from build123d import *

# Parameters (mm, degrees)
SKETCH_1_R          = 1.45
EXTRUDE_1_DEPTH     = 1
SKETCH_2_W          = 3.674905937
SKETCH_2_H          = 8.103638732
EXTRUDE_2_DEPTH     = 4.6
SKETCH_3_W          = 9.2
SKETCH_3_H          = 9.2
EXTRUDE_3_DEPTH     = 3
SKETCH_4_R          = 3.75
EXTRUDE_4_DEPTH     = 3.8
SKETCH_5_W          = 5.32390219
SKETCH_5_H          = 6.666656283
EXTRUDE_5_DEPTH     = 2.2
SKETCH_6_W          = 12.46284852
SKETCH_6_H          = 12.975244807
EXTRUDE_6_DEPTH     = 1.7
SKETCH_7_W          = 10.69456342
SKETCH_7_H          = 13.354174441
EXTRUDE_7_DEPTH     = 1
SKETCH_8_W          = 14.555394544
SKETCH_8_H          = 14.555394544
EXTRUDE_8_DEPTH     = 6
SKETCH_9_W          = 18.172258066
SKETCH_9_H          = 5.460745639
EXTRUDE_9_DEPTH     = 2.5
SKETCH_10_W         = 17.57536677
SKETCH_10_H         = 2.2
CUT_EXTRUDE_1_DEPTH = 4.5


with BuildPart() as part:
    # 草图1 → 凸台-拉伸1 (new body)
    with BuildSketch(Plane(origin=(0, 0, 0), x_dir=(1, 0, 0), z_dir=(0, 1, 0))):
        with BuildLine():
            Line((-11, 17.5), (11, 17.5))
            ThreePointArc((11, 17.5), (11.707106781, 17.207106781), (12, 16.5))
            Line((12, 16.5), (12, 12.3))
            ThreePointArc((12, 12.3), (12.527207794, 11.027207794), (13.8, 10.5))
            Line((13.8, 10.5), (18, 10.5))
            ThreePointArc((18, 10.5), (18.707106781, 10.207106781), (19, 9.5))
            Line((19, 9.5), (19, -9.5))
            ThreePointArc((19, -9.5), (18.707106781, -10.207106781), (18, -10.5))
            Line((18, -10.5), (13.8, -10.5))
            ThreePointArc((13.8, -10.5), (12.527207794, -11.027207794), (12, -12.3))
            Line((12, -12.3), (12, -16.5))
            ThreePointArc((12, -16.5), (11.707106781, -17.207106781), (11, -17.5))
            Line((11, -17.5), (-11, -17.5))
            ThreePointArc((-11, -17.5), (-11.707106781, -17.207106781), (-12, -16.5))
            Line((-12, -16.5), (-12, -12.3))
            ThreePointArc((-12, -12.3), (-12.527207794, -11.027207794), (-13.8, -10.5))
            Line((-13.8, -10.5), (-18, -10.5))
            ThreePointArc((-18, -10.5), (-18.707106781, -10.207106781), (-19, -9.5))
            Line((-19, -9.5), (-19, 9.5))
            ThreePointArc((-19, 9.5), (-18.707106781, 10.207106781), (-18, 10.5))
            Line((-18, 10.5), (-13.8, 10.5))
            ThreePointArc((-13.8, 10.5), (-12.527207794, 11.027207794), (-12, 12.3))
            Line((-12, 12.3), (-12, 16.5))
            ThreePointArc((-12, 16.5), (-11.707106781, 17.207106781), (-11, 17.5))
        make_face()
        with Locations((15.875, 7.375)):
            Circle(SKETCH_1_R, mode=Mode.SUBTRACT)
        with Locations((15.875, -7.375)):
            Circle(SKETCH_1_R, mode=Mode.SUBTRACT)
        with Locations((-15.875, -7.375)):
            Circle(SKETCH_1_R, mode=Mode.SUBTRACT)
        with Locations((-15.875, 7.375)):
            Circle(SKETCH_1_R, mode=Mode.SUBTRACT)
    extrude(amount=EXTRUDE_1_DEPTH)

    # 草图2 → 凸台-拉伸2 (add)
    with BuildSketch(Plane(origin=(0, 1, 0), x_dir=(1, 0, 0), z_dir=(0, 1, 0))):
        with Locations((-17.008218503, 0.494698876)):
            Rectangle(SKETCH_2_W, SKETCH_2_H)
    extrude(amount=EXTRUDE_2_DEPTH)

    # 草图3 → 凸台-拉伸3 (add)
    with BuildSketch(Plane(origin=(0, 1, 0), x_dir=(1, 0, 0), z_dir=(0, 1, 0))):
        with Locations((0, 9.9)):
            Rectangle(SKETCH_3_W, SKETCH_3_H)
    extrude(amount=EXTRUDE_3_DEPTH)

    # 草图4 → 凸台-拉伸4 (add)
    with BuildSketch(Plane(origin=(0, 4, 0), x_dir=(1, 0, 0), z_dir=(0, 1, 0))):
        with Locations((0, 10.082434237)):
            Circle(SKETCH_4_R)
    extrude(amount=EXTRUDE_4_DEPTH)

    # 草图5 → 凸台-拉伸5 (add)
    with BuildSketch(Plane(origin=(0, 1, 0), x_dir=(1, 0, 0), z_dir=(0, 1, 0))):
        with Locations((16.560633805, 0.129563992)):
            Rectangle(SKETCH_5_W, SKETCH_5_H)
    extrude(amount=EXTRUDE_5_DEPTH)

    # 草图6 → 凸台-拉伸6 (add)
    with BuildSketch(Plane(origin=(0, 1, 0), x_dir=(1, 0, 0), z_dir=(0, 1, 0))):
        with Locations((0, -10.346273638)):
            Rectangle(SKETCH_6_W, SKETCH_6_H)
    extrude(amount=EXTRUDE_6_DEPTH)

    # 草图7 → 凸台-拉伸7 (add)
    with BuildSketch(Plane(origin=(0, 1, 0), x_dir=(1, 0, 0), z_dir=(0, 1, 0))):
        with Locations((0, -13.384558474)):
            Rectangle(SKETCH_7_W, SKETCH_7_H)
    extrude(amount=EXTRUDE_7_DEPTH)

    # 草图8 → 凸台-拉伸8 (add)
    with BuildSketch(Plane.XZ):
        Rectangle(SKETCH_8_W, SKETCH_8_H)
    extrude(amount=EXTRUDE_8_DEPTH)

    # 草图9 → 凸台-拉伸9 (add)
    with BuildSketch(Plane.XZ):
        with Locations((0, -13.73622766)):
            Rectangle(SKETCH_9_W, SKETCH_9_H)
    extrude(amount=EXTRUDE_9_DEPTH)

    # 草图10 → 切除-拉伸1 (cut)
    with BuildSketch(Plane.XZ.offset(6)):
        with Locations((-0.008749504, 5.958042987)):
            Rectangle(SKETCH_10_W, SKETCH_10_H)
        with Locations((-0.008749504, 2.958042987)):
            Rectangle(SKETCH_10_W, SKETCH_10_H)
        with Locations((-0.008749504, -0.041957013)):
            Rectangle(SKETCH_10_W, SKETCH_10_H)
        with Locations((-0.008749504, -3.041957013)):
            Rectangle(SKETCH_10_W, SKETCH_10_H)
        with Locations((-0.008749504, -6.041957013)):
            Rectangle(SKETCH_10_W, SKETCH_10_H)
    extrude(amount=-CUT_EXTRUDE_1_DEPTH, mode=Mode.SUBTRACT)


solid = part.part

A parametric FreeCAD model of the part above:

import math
import FreeCAD as App
import Part
import Sketcher


def add_polygon(sketch, points):
    """Adds a closed chain of lines whose ends are joined by coincident constraints."""
    first, n = sketch.GeometryCount, len(points)
    for a, b in zip(points, points[1:] + points[:1]):
        sketch.addGeometry(Part.LineSegment(App.Vector(*a, 0), App.Vector(*b, 0)), False)
    for i in range(n):
        sketch.addConstraint(Sketcher.Constraint("Coincident", first + i, 2, first + (i + 1) % n, 1))

doc = App.newDocument("Part")
body = doc.addObject("PartDesign::Body", "Body")

# Sketch on XZ plane
sketch1 = body.newObject("Sketcher::SketchObject", "Sketch")
sketch1.AttachmentSupport = (doc.getObject("XZ_Plane"), [""])
sketch1.MapMode = "FlatFace"
sketch1.addGeometry([
    Part.LineSegment(App.Vector(11, -17.5, 0), App.Vector(-11, -17.5, 0)),  # 0
    Part.ArcOfCircle(Part.Circle(App.Vector(-11, -16.5, 0), App.Vector(0, 0, 1), 1), math.radians(-180), math.radians(-90)),  # 1
    Part.LineSegment(App.Vector(-12, -16.5, 0), App.Vector(-12, -12.3, 0)),  # 2
    Part.ArcOfCircle(Part.Circle(App.Vector(-13.8, -12.3, 0), App.Vector(0, 0, 1), 1.8), math.radians(0), math.radians(90)),  # 3
    Part.LineSegment(App.Vector(-13.8, -10.5, 0), App.Vector(-18, -10.5, 0)),  # 4
    Part.ArcOfCircle(Part.Circle(App.Vector(-18, -9.5, 0), App.Vector(0, 0, 1), 1), math.radians(-180), math.radians(-90)),  # 5
    Part.LineSegment(App.Vector(-19, -9.5, 0), App.Vector(-19, 9.5, 0)),  # 6
    Part.ArcOfCircle(Part.Circle(App.Vector(-18, 9.5, 0), App.Vector(0, 0, 1), 1), math.radians(90), math.radians(180)),  # 7
    Part.LineSegment(App.Vector(-18, 10.5, 0), App.Vector(-13.8, 10.5, 0)),  # 8
    Part.ArcOfCircle(Part.Circle(App.Vector(-13.8, 12.3, 0), App.Vector(0, 0, 1), 1.8), math.radians(-90), math.radians(0)),  # 9
    Part.LineSegment(App.Vector(-12, 12.3, 0), App.Vector(-12, 16.5, 0)),  # 10
    Part.ArcOfCircle(Part.Circle(App.Vector(-11, 16.5, 0), App.Vector(0, 0, 1), 1), math.radians(90), math.radians(180)),  # 11
    Part.LineSegment(App.Vector(-11, 17.5, 0), App.Vector(11, 17.5, 0)),  # 12
    Part.ArcOfCircle(Part.Circle(App.Vector(11, 16.5, 0), App.Vector(0, 0, 1), 1), math.radians(0), math.radians(90)),  # 13
    Part.LineSegment(App.Vector(12, 16.5, 0), App.Vector(12, 12.3, 0)),  # 14
    Part.ArcOfCircle(Part.Circle(App.Vector(13.8, 12.3, 0), App.Vector(0, 0, 1), 1.8), math.radians(180), math.radians(270)),  # 15
    Part.LineSegment(App.Vector(13.8, 10.5, 0), App.Vector(18, 10.5, 0)),  # 16
    Part.ArcOfCircle(Part.Circle(App.Vector(18, 9.5, 0), App.Vector(0, 0, 1), 1), math.radians(0), math.radians(90)),  # 17
    Part.LineSegment(App.Vector(19, 9.5, 0), App.Vector(19, -9.5, 0)),  # 18
    Part.ArcOfCircle(Part.Circle(App.Vector(18, -9.5, 0), App.Vector(0, 0, 1), 1), math.radians(-90), math.radians(0)),  # 19
    Part.LineSegment(App.Vector(18, -10.5, 0), App.Vector(13.8, -10.5, 0)),  # 20
    Part.ArcOfCircle(Part.Circle(App.Vector(13.8, -12.3, 0), App.Vector(0, 0, 1), 1.8), math.radians(90), math.radians(180)),  # 21
    Part.LineSegment(App.Vector(12, -12.3, 0), App.Vector(12, -16.5, 0)),  # 22
    Part.ArcOfCircle(Part.Circle(App.Vector(11, -16.5, 0), App.Vector(0, 0, 1), 1), math.radians(-90), math.radians(0)),  # 23
    Part.Circle(App.Vector(15.875, 7.375, 0), App.Vector(0, 0, 1), 1.45),  # 24
    Part.Circle(App.Vector(-15.875, 7.375, 0), App.Vector(0, 0, 1), 1.45),  # 25
    Part.Circle(App.Vector(15.875, -7.375, 0), App.Vector(0, 0, 1), 1.45),  # 26
    Part.Circle(App.Vector(-15.875, -7.375, 0), App.Vector(0, 0, 1), 1.45),  # 27
], False)
sketch1.addConstraint([
    Sketcher.Constraint("Tangent", 0, 2, 1, 2),
    Sketcher.Constraint("Tangent", 1, 1, 2, 1),
    Sketcher.Constraint("Tangent", 2, 2, 3, 1),
    Sketcher.Constraint("Tangent", 3, 2, 4, 1),
    Sketcher.Constraint("Tangent", 4, 2, 5, 2),
    Sketcher.Constraint("Tangent", 5, 1, 6, 1),
    Sketcher.Constraint("Tangent", 6, 2, 7, 2),
    Sketcher.Constraint("Tangent", 7, 1, 8, 1),
    Sketcher.Constraint("Tangent", 8, 2, 9, 1),
    Sketcher.Constraint("Tangent", 9, 2, 10, 1),
    Sketcher.Constraint("Tangent", 10, 2, 11, 2),
    Sketcher.Constraint("Tangent", 11, 1, 12, 1),
    Sketcher.Constraint("Tangent", 12, 2, 13, 2),
    Sketcher.Constraint("Tangent", 13, 1, 14, 1),
    Sketcher.Constraint("Tangent", 14, 2, 15, 1),
    Sketcher.Constraint("Tangent", 15, 2, 16, 1),
    Sketcher.Constraint("Tangent", 16, 2, 17, 2),
    Sketcher.Constraint("Tangent", 17, 1, 18, 1),
    Sketcher.Constraint("Tangent", 18, 2, 19, 2),
    Sketcher.Constraint("Tangent", 19, 1, 20, 1),
    Sketcher.Constraint("Tangent", 20, 2, 21, 1),
    Sketcher.Constraint("Tangent", 21, 2, 22, 1),
    Sketcher.Constraint("Tangent", 22, 2, 23, 2),
    Sketcher.Constraint("Tangent", 23, 1, 0, 1),
    Sketcher.Constraint("Horizontal", 0),
    Sketcher.Constraint("Vertical", 2),
    Sketcher.Constraint("Horizontal", 4),
    Sketcher.Constraint("Vertical", 6),
    Sketcher.Constraint("Horizontal", 8),
    Sketcher.Constraint("Vertical", 10),
    Sketcher.Constraint("Horizontal", 12),
    Sketcher.Constraint("Vertical", 14),
    Sketcher.Constraint("Horizontal", 16),
    Sketcher.Constraint("Vertical", 18),
    Sketcher.Constraint("Horizontal", 20),
    Sketcher.Constraint("Vertical", 22),
    Sketcher.Constraint("Equal", 1, 5),
    Sketcher.Constraint("Equal", 5, 7),
    Sketcher.Constraint("Equal", 3, 9),
    Sketcher.Constraint("Equal", 7, 11),
    Sketcher.Constraint("Equal", 11, 13),
    Sketcher.Constraint("Equal", 9, 15),
    Sketcher.Constraint("Equal", 13, 17),
    Sketcher.Constraint("Equal", 17, 19),
    Sketcher.Constraint("Equal", 15, 21),
    Sketcher.Constraint("Equal", 19, 23),
    Sketcher.Constraint("Equal", 24, 25),
    Sketcher.Constraint("Equal", 25, 26),
    Sketcher.Constraint("Equal", 26, 27),
    Sketcher.Constraint("Symmetric", 1, 3, 13, 3, -1, 1),
    Sketcher.Constraint("Symmetric", 5, 3, 17, 3, -1, 1),
    Sketcher.Constraint("Symmetric", 9, 3, 21, 3, -1, 1),
    Sketcher.Constraint("Symmetric", 25, 3, 26, 3, -1, 1),
    Sketcher.Constraint("Symmetric", 24, 3, 27, 3, -1, 1),
    Sketcher.Constraint("Symmetric", 9, 3, 15, 3, -2),
    Sketcher.Constraint("Symmetric", 24, 3, 25, 3, -2),
    Sketcher.Constraint("Equal", 20, 2),
    Sketcher.Constraint("Radius", 1, 1.0),
    Sketcher.Constraint("Diameter", 24, 2.9),
    Sketcher.Constraint("Radius", 3, 1.8),
    Sketcher.Constraint("DistanceX", 0, 2, 0, 1, 22.0),
    Sketcher.Constraint("DistanceY", 6, 1, 6, 2, 19.0),
    Sketcher.Constraint("DistanceX", 4, 2, 4, 1, 4.2),
    Sketcher.Constraint("DistanceY", 26, 3, 24, 3, 14.75),
    Sketcher.Constraint("DistanceX", -1, 1, 24, 3, 15.875),
])
pad1 = body.newObject("PartDesign::Pad", "Pad")
pad1.Profile = sketch1
pad1.Length = 1
pad1.Reversed = True

# Sketch on XZ plane
sketch2 = body.newObject("Sketcher::SketchObject", "Sketch001")
sketch2.AttachmentSupport = (doc.getObject("XZ_Plane"), [""])
sketch2.MapMode = "FlatFace"
sketch2.AttachmentOffset = App.Placement(App.Vector(0, 0, -1), App.Rotation())
add_polygon(sketch2, [(-18.845671, -4.546518), (-18.845671, 3.55712), (-15.170766, 3.55712), (-15.170766, -4.546518)])  # lines 0-3
sketch2.addConstraint([
    Sketcher.Constraint("Vertical", 0),
    Sketcher.Constraint("Horizontal", 1),
    Sketcher.Constraint("Vertical", 2),
    Sketcher.Constraint("Horizontal", 3),
    Sketcher.Constraint("DistanceY", 0, 1, 0, 2, 8.103639),
    Sketcher.Constraint("DistanceX", 1, 1, 1, 2, 3.674906),
    Sketcher.Constraint("DistanceX", 0, 2, -1, 1, 18.845671),
    Sketcher.Constraint("DistanceY", -1, 1, 0, 2, 3.55712),
])
pad2 = body.newObject("PartDesign::Pad", "Pad001")
pad2.Profile = sketch2
pad2.Length = 4.6
pad2.Reversed = True

# Sketch on XZ plane
sketch3 = body.newObject("Sketcher::SketchObject", "Sketch002")
sketch3.AttachmentSupport = (doc.getObject("XZ_Plane"), [""])
sketch3.MapMode = "FlatFace"
sketch3.AttachmentOffset = App.Placement(App.Vector(0, 0, -1), App.Rotation())
add_polygon(sketch3, [(-4.6, -14.5), (-4.6, -5.3), (4.6, -5.3), (4.6, -14.5)])  # lines 0-3
sketch3.addConstraint([
    Sketcher.Constraint("Vertical", 0),
    Sketcher.Constraint("Horizontal", 1),
    Sketcher.Constraint("Vertical", 2),
    Sketcher.Constraint("Horizontal", 3),
    Sketcher.Constraint("Equal", 3, 0),
    Sketcher.Constraint("DistanceX", 1, 1, 1, 2, 9.2),
    Sketcher.Constraint("DistanceX", 0, 2, -1, 1, 4.6),
    Sketcher.Constraint("DistanceY", 0, 2, -1, 1, 5.3),
])
pad3 = body.newObject("PartDesign::Pad", "Pad002")
pad3.Profile = sketch3
pad3.Length = 3
pad3.Reversed = True

# Sketch on XZ plane
sketch4 = body.newObject("Sketcher::SketchObject", "Sketch003")
sketch4.AttachmentSupport = (doc.getObject("XZ_Plane"), [""])
sketch4.MapMode = "FlatFace"
sketch4.AttachmentOffset = App.Placement(App.Vector(0, 0, -4), App.Rotation())
sketch4.addGeometry(Part.Circle(App.Vector(0, -10.082434, 0), App.Vector(0, 0, 1), 3.75), False)
sketch4.addConstraint([
    Sketcher.Constraint("PointOnObject", 0, 3, -2),
    Sketcher.Constraint("Diameter", 0, 7.5),
    Sketcher.Constraint("DistanceY", 0, 3, -1, 1, 10.082434),
])
pad4 = body.newObject("PartDesign::Pad", "Pad003")
pad4.Profile = sketch4
pad4.Length = 3.8
pad4.Reversed = True

# Sketch on XZ plane
sketch5 = body.newObject("Sketcher::SketchObject", "Sketch004")
sketch5.AttachmentSupport = (doc.getObject("XZ_Plane"), [""])
sketch5.MapMode = "FlatFace"
sketch5.AttachmentOffset = App.Placement(App.Vector(0, 0, -1), App.Rotation())
add_polygon(sketch5, [(13.898683, -3.462892), (13.898683, 3.203764), (19.222585, 3.203764), (19.222585, -3.462892)])  # lines 0-3
sketch5.addConstraint([
    Sketcher.Constraint("Vertical", 0),
    Sketcher.Constraint("Horizontal", 1),
    Sketcher.Constraint("Vertical", 2),
    Sketcher.Constraint("Horizontal", 3),
    Sketcher.Constraint("DistanceX", 1, 1, 1, 2, 5.323902),
    Sketcher.Constraint("DistanceY", 0, 1, 0, 2, 6.666656),
    Sketcher.Constraint("DistanceX", -1, 1, 0, 2, 13.898683),
    Sketcher.Constraint("DistanceY", -1, 1, 0, 2, 3.203764),
])
pad5 = body.newObject("PartDesign::Pad", "Pad004")
pad5.Profile = sketch5
pad5.Length = 2.2
pad5.Reversed = True

# Sketch on XZ plane
sketch6 = body.newObject("Sketcher::SketchObject", "Sketch005")
sketch6.AttachmentSupport = (doc.getObject("XZ_Plane"), [""])
sketch6.MapMode = "FlatFace"
sketch6.AttachmentOffset = App.Placement(App.Vector(0, 0, -1), App.Rotation())
add_polygon(sketch6, [(-6.231424, 3.858651), (-6.231424, 16.833896), (6.231424, 16.833896), (6.231424, 3.858651)])  # lines 0-3
sketch6.addConstraint([
    Sketcher.Constraint("Vertical", 0),
    Sketcher.Constraint("Horizontal", 1),
    Sketcher.Constraint("Vertical", 2),
    Sketcher.Constraint("Horizontal", 3),
    Sketcher.Constraint("DistanceX", 1, 1, 1, 2, 12.462849),
    Sketcher.Constraint("DistanceY", 0, 1, 0, 2, 12.975245),
    Sketcher.Constraint("DistanceY", -1, 1, 2, 2, 3.858651),
    Sketcher.Constraint("DistanceX", 0, 2, -1, 1, 6.231424),
])
pad6 = body.newObject("PartDesign::Pad", "Pad005")
pad6.Profile = sketch6
pad6.Length = 1.7
pad6.Reversed = True

# Sketch on XZ plane
sketch7 = body.newObject("Sketcher::SketchObject", "Sketch006")
sketch7.AttachmentSupport = (doc.getObject("XZ_Plane"), [""])
sketch7.MapMode = "FlatFace"
sketch7.AttachmentOffset = App.Placement(App.Vector(0, 0, -1), App.Rotation())
add_polygon(sketch7, [(-5.347282, 6.707471), (-5.347282, 20.061646), (5.347282, 20.061646), (5.347282, 6.707471)])  # lines 0-3
sketch7.addConstraint([
    Sketcher.Constraint("Vertical", 0),
    Sketcher.Constraint("Horizontal", 1),
    Sketcher.Constraint("Vertical", 2),
    Sketcher.Constraint("Horizontal", 3),
    Sketcher.Constraint("DistanceX", 1, 1, 1, 2, 10.694563),
    Sketcher.Constraint("DistanceY", 0, 1, 0, 2, 13.354174),
    Sketcher.Constraint("DistanceX", 0, 2, -1, 1, 5.347282),
    Sketcher.Constraint("DistanceY", -1, 1, 2, 2, 6.707471),
])
pad7 = body.newObject("PartDesign::Pad", "Pad006")
pad7.Profile = sketch7
pad7.Length = 1
pad7.Reversed = True

# Sketch on XZ plane
sketch8 = body.newObject("Sketcher::SketchObject", "Sketch007")
sketch8.AttachmentSupport = (doc.getObject("XZ_Plane"), [""])
sketch8.MapMode = "FlatFace"
add_polygon(sketch8, [(-7.277697, 7.277697), (-7.277697, -7.277697), (7.277697, -7.277697), (7.277697, 7.277697)])  # lines 0-3
sketch8.addConstraint([
    Sketcher.Constraint("Vertical", 0),
    Sketcher.Constraint("Horizontal", 1),
    Sketcher.Constraint("Vertical", 2),
    Sketcher.Constraint("Horizontal", 3),
    Sketcher.Constraint("Symmetric", 0, 2, 2, 2, -1, 1),
    Sketcher.Constraint("Equal", 3, 0),
    Sketcher.Constraint("DistanceX", 1, 1, 1, 2, 14.555395),
])
pad8 = body.newObject("PartDesign::Pad", "Pad007")
pad8.Profile = sketch8
pad8.Length = 6

# Sketch on XZ plane
sketch9 = body.newObject("Sketcher::SketchObject", "Sketch008")
sketch9.AttachmentSupport = (doc.getObject("XZ_Plane"), [""])
sketch9.MapMode = "FlatFace"
add_polygon(sketch9, [(-9.086129, -11.005855), (-9.086129, -16.4666), (9.086129, -16.4666), (9.086129, -11.005855)])  # lines 0-3
sketch9.addConstraint([
    Sketcher.Constraint("Vertical", 0),
    Sketcher.Constraint("Horizontal", 1),
    Sketcher.Constraint("Vertical", 2),
    Sketcher.Constraint("Horizontal", 3),
    Sketcher.Constraint("DistanceX", 1, 1, 1, 2, 18.172258),
    Sketcher.Constraint("DistanceY", 0, 2, -1, 1, 16.4666),
    Sketcher.Constraint("DistanceY", 0, 2, 0, 1, 5.460746),
    Sketcher.Constraint("DistanceX", 0, 2, -1, 1, 9.086129),
])
pad9 = body.newObject("PartDesign::Pad", "Pad008")
pad9.Profile = sketch9
pad9.Length = 2.5

# Sketch on XZ plane
sketch10 = body.newObject("Sketcher::SketchObject", "Sketch009")
sketch10.AttachmentSupport = (doc.getObject("XZ_Plane"), [""])
sketch10.MapMode = "FlatFace"
sketch10.AttachmentOffset = App.Placement(App.Vector(0, 0, 6), App.Rotation())
add_polygon(sketch10, [(-8.796433, 7.058043), (-8.796433, 4.858043), (8.778934, 4.858043), (8.778934, 7.058043)])  # lines 0-3
add_polygon(sketch10, [(-8.796433, 4.058043), (-8.796433, 1.858043), (8.778934, 1.858043), (8.778934, 4.058043)])  # lines 4-7
add_polygon(sketch10, [(-8.796433, 1.058043), (-8.796433, -1.141957), (8.778934, -1.141957), (8.778934, 1.058043)])  # lines 8-11
add_polygon(sketch10, [(-8.796433, -1.941957), (-8.796433, -4.141957), (8.778934, -4.141957), (8.778934, -1.941957)])  # lines 12-15
add_polygon(sketch10, [(-8.796433, -4.941957), (-8.796433, -7.141957), (8.778934, -7.141957), (8.778934, -4.941957)])  # lines 16-19
sketch10.addConstraint([
    Sketcher.Constraint("Vertical", 0),
    Sketcher.Constraint("Horizontal", 1),
    Sketcher.Constraint("Vertical", 2),
    Sketcher.Constraint("Horizontal", 3),
    Sketcher.Constraint("Vertical", 4),
    Sketcher.Constraint("Horizontal", 5),
    Sketcher.Constraint("Vertical", 6),
    Sketcher.Constraint("Horizontal", 7),
    Sketcher.Constraint("Vertical", 8),
    Sketcher.Constraint("Horizontal", 9),
    Sketcher.Constraint("Vertical", 10),
    Sketcher.Constraint("Horizontal", 11),
    Sketcher.Constraint("Vertical", 12),
    Sketcher.Constraint("Horizontal", 13),
    Sketcher.Constraint("Vertical", 14),
    Sketcher.Constraint("Horizontal", 15),
    Sketcher.Constraint("Vertical", 16),
    Sketcher.Constraint("Horizontal", 17),
    Sketcher.Constraint("Vertical", 18),
    Sketcher.Constraint("Horizontal", 19),
    Sketcher.Constraint("Vertical", 3, 2, 4, 2),
    Sketcher.Constraint("Vertical", 2, 2, 5, 2),
    Sketcher.Constraint("Vertical", 7, 2, 8, 2),
    Sketcher.Constraint("Vertical", 6, 2, 9, 2),
    Sketcher.Constraint("Vertical", 11, 2, 12, 2),
    Sketcher.Constraint("Vertical", 10, 2, 13, 2),
    Sketcher.Constraint("Vertical", 15, 2, 16, 2),
    Sketcher.Constraint("Vertical", 14, 2, 17, 2),
    Sketcher.Constraint("Equal", 2, 4),
    Sketcher.Constraint("Equal", 6, 8),
    Sketcher.Constraint("Equal", 10, 12),
    Sketcher.Constraint("Equal", 14, 16),
    Sketcher.Constraint("DistanceY", 0, 2, 0, 1, 2.2),
    Sketcher.Constraint("DistanceY", 4, 2, 0, 2, 3.0),
    Sketcher.Constraint("DistanceY", 8, 2, 4, 2, 3.0),
    Sketcher.Constraint("DistanceY", 12, 2, 8, 2, 3.0),
    Sketcher.Constraint("DistanceY", 16, 2, 12, 2, 3.0),
    Sketcher.Constraint("DistanceX", 1, 1, 1, 2, 17.575367),
    Sketcher.Constraint("DistanceX", 0, 2, -1, 1, 8.796433),
    Sketcher.Constraint("DistanceY", -1, 1, 0, 2, 4.858043),
])
pocket1 = body.newObject("PartDesign::Pocket", "Pocket")
pocket1.Profile = sketch10
pocket1.Length = 4.5

doc.recompute()
